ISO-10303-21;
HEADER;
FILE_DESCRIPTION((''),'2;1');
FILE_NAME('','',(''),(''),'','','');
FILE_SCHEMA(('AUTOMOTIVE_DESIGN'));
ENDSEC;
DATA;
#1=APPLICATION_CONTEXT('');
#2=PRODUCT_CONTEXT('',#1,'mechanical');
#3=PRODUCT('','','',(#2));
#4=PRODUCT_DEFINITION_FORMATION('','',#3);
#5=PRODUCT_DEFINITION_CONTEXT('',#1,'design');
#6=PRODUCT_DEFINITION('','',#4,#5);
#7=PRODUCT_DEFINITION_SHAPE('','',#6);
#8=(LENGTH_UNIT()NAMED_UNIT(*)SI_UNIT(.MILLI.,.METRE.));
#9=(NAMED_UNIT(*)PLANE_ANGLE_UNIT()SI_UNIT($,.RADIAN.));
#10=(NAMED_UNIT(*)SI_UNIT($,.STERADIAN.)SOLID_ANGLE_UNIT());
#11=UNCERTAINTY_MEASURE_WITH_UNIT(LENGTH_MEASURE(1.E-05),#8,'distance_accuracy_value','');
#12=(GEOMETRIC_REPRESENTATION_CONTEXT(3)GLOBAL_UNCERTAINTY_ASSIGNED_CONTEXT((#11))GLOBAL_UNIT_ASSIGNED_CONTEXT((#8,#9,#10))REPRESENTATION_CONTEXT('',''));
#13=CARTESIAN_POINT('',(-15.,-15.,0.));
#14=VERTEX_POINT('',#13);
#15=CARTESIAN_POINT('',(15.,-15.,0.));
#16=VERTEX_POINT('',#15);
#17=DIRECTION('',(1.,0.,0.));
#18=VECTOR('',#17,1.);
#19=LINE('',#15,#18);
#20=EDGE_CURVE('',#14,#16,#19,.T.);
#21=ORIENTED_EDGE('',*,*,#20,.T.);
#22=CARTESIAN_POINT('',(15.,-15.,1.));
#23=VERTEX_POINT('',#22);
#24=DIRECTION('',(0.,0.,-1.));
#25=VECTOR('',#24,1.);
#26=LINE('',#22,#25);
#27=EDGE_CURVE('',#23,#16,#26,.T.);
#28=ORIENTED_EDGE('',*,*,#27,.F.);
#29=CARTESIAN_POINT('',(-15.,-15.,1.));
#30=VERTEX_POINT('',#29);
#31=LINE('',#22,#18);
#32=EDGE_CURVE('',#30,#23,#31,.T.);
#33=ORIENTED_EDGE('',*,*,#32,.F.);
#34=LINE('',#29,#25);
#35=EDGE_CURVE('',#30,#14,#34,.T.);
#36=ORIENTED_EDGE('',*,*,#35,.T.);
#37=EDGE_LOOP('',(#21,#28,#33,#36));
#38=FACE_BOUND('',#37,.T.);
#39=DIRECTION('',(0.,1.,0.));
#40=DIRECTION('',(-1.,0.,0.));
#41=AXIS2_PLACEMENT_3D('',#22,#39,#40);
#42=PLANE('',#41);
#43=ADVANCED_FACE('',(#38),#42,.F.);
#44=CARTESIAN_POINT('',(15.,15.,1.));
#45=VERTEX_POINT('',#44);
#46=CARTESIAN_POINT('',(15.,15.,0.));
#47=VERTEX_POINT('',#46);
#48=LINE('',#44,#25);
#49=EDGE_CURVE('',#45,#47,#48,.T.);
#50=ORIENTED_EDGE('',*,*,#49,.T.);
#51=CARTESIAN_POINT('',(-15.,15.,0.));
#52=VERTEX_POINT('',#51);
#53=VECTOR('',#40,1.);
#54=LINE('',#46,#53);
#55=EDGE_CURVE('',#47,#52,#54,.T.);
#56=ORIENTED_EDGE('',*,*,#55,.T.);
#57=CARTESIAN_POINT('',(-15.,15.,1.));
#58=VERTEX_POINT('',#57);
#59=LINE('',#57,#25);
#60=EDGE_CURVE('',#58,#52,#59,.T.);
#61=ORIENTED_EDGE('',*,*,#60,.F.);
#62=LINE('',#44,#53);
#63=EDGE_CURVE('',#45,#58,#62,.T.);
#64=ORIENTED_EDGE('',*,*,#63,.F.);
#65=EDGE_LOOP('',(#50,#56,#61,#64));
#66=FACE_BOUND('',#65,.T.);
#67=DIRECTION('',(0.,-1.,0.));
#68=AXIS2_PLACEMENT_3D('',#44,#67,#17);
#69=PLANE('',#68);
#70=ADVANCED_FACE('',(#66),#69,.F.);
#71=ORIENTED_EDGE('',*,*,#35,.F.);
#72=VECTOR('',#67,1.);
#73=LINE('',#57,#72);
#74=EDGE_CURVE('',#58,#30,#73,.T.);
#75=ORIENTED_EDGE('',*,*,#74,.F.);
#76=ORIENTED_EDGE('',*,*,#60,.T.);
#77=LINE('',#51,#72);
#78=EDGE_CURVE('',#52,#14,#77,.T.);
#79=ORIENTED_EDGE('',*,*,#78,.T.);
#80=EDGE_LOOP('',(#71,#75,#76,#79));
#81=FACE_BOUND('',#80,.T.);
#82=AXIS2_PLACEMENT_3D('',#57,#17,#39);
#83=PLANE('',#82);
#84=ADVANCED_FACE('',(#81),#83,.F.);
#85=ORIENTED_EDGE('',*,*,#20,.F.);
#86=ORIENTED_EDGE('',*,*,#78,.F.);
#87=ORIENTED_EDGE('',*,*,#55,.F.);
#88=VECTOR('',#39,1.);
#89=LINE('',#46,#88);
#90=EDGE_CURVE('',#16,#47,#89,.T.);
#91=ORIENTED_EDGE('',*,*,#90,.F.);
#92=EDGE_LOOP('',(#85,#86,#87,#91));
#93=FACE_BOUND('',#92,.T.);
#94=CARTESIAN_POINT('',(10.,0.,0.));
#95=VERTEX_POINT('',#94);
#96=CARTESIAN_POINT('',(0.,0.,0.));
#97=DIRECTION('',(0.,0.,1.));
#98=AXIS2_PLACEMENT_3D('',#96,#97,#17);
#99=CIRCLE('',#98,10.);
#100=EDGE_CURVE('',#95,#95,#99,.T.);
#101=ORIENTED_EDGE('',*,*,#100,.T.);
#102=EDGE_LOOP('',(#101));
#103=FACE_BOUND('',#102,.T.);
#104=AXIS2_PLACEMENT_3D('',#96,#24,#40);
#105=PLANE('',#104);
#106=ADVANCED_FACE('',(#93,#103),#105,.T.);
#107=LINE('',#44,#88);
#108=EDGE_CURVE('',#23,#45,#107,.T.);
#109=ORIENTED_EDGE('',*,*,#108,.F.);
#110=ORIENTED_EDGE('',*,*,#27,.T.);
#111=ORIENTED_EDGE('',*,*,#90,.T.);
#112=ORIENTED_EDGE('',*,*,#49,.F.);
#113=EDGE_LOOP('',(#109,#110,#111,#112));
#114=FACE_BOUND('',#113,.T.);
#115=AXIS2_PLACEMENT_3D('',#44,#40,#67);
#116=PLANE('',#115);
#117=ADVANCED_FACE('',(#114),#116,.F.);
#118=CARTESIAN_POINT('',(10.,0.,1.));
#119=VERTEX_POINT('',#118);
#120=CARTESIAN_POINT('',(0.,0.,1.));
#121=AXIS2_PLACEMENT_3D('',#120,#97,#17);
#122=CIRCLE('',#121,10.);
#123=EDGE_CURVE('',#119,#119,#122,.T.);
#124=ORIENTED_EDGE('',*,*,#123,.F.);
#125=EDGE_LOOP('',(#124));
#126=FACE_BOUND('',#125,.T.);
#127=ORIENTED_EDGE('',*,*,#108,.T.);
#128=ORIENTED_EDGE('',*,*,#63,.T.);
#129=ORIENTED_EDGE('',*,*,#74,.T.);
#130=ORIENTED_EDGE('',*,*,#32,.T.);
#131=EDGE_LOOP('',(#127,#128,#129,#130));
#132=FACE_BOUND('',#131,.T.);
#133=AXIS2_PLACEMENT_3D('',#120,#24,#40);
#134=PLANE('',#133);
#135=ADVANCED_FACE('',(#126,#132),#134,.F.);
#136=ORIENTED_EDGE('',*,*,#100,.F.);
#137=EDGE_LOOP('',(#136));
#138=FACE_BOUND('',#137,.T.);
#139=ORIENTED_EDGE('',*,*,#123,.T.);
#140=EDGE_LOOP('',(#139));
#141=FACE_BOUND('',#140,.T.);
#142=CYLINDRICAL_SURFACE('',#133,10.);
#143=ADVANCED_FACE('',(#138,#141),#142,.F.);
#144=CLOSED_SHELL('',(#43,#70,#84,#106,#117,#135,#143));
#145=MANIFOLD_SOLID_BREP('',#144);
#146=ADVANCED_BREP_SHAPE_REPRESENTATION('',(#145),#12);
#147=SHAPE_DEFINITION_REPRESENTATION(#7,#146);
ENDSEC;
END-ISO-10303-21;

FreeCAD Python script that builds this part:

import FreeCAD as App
import Part
import Sketcher

V = App.Vector

doc = App.newDocument("Part")
body = doc.addObject("PartDesign::Body", "Body")

sketch1 = body.newObject("Sketcher::SketchObject", "Sketch")
sketch1.AttachmentSupport = (doc.getObject("XY_Plane"), [""])
sketch1.MapMode = "FlatFace"
sketch1.addGeometry(Part.LineSegment(V(-15, 15, 0), V(-15, -15, 0)), False)
sketch1.addGeometry(Part.LineSegment(V(-15, -15, 0), V(15, -15, 0)), False)
sketch1.addGeometry(Part.LineSegment(V(15, -15, 0), V(15, 15, 0)), False)
sketch1.addGeometry(Part.LineSegment(V(15, 15, 0), V(-15, 15, 0)), False)
sketch1.addGeometry(Part.Circle(V(0, 0, 0), V(0, 0, 1), 10), False)
sketch1.addConstraint(Sketcher.Constraint("Coincident", 0, 2, 1, 1))
sketch1.addConstraint(Sketcher.Constraint("Coincident", 1, 2, 2, 1))
sketch1.addConstraint(Sketcher.Constraint("Coincident", 2, 2, 3, 1))
sketch1.addConstraint(Sketcher.Constraint("Coincident", 3, 2, 0, 1))
sketch1.addConstraint(Sketcher.Constraint("Vertical", 0))
sketch1.addConstraint(Sketcher.Constraint("Horizontal", 1))
sketch1.addConstraint(Sketcher.Constraint("Vertical", 2))
sketch1.addConstraint(Sketcher.Constraint("Horizontal", 3))
sketch1.addConstraint(Sketcher.Constraint("Coincident", 4, 3, -1, 1))
sketch1.addConstraint(Sketcher.Constraint("Symmetric", 0, 2, 2, 2, -1, 1))
sketch1.addConstraint(Sketcher.Constraint("Equal", 3, 0))
sketch1.addConstraint(Sketcher.Constraint("Diameter", 4, 20.0))
sketch1.addConstraint(Sketcher.Constraint("DistanceX", 1, 1, 1, 2, 30.0))
pad1 = body.newObject("PartDesign::Pad", "Pad")
pad1.Profile = sketch1
pad1.Length = 1

doc.recompute()
